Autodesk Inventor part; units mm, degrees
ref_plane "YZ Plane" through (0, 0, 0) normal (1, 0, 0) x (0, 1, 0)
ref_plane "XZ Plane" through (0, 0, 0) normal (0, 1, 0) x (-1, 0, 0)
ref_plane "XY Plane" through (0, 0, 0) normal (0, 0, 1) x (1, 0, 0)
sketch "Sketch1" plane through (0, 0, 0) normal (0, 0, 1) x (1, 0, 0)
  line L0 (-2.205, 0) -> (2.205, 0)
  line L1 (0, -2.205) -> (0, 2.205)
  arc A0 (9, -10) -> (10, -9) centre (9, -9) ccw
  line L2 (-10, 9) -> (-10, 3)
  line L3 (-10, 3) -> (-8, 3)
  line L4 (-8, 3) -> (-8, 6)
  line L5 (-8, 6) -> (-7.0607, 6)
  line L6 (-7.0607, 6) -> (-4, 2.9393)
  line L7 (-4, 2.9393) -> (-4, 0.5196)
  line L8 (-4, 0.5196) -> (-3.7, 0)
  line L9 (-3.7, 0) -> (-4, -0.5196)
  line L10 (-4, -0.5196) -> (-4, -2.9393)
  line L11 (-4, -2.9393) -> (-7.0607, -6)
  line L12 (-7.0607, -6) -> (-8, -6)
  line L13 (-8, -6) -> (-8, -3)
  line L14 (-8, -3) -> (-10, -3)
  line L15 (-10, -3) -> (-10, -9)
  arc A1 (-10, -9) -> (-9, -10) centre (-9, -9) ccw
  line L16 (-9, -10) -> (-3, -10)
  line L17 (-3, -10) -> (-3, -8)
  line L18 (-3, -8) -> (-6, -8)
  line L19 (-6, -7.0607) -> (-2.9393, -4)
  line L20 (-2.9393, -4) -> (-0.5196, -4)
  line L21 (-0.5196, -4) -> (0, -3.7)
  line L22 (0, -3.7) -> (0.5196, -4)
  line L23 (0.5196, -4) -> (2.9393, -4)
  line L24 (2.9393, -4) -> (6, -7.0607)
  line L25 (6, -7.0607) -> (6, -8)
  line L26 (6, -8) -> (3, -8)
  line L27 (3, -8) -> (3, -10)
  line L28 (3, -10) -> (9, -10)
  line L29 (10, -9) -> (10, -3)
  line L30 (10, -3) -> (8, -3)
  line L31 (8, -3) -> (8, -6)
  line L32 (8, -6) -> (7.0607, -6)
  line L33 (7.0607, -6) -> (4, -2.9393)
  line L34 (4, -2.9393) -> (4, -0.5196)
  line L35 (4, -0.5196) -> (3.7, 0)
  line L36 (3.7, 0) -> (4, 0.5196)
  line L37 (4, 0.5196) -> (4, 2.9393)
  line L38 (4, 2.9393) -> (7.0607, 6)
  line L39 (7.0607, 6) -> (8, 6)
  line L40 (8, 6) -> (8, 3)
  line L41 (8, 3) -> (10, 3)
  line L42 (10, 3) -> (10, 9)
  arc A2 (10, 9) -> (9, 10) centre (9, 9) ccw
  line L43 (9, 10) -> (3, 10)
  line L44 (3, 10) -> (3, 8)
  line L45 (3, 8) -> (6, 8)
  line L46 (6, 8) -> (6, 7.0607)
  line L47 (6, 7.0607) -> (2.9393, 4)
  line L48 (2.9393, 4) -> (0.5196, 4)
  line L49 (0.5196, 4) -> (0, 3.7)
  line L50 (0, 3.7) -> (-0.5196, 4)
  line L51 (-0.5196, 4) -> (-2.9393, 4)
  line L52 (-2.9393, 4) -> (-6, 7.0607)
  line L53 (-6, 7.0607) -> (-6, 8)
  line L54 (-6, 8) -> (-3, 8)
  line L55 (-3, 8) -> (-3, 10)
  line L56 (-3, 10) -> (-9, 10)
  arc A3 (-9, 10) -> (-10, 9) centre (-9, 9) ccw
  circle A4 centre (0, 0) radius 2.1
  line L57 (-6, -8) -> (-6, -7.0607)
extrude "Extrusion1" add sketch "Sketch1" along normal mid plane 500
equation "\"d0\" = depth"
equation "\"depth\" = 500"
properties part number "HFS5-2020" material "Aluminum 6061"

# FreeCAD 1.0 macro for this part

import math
import FreeCAD as App
import Part
import Sketcher

V = App.Vector
Q = App.Units.Quantity

doc = App.newDocument("Part")
body = doc.addObject("PartDesign::Body", "Body")

sketch1 = body.newObject("Sketcher::SketchObject", "Sketch")
sketch1.AttachmentSupport = (doc.getObject("XY_Plane"), [""])
sketch1.MapMode = "FlatFace"
sketch1.addGeometry(Part.LineSegment(V(3, -10, 0), V(9, -10, 0)), False)
sketch1.addGeometry(Part.ArcOfCircle(Part.Circle(V(9, -9, 0), V(0, 0, 1), 1), math.radians(-90), math.radians(0)), False)
sketch1.addGeometry(Part.LineSegment(V(10, -9, 0), V(10, -3, 0)), False)
sketch1.addGeometry(Part.LineSegment(V(10, -3, 0), V(8, -3, 0)), False)
sketch1.addGeometry(Part.LineSegment(V(8, -3, 0), V(8, -6, 0)), False)
sketch1.addGeometry(Part.LineSegment(V(8, -6, 0), V(7.1, -6, 0)), False)
sketch1.addGeometry(Part.LineSegment(V(7.1, -6, 0), V(4, -2.9, 0)), False)
sketch1.addGeometry(Part.LineSegment(V(4, -2.9, 0), V(4, -0.5, 0)), False)
sketch1.addGeometry(Part.LineSegment(V(4, -0.5, 0), V(3.7, 0, 0)), False)
sketch1.addGeometry(Part.LineSegment(V(3.7, 0, 0), V(4, 0.5, 0)), False)
sketch1.addGeometry(Part.LineSegment(V(4, 0.5, 0), V(4, 2.9, 0)), False)
sketch1.addGeometry(Part.LineSegment(V(4, 2.9, 0), V(7.1, 6, 0)), False)
sketch1.addGeometry(Part.LineSegment(V(7.1, 6, 0), V(8, 6, 0)), False)
sketch1.addGeometry(Part.LineSegment(V(8, 6, 0), V(8, 3, 0)), False)
sketch1.addGeometry(Part.LineSegment(V(8, 3, 0), V(10, 3, 0)), False)
sketch1.addGeometry(Part.LineSegment(V(10, 3, 0), V(10, 9, 0)), False)
sketch1.addGeometry(Part.ArcOfCircle(Part.Circle(V(9, 9, 0), V(0, 0, 1), 1), math.radians(0), math.radians(90)), False)
sketch1.addGeometry(Part.LineSegment(V(9, 10, 0), V(3, 10, 0)), False)
sketch1.addGeometry(Part.LineSegment(V(3, 10, 0), V(3, 8, 0)), False)
sketch1.addGeometry(Part.LineSegment(V(3, 8, 0), V(6, 8, 0)), False)
sketch1.addGeometry(Part.LineSegment(V(6, 8, 0), V(6, 7.1, 0)), False)
sketch1.addGeometry(Part.LineSegment(V(6, 7.1, 0), V(2.9, 4, 0)), False)
sketch1.addGeometry(Part.LineSegment(V(2.9, 4, 0), V(0.5, 4, 0)), False)
sketch1.addGeometry(Part.LineSegment(V(0.5, 4, 0), V(0, 3.7, 0)), False)
sketch1.addGeometry(Part.LineSegment(V(0, 3.7, 0), V(-0.5, 4, 0)), False)
sketch1.addGeometry(Part.LineSegment(V(-0.5, 4, 0), V(-2.9, 4, 0)), False)
sketch1.addGeometry(Part.LineSegment(V(-2.9, 4, 0), V(-6, 7.1, 0)), False)
sketch1.addGeometry(Part.LineSegment(V(-6, 7.1, 0), V(-6, 8, 0)), False)
sketch1.addGeometry(Part.LineSegment(V(-6, 8, 0), V(-3, 8, 0)), False)
sketch1.addGeometry(Part.LineSegment(V(-3, 8, 0), V(-3, 10, 0)), False)
sketch1.addGeometry(Part.LineSegment(V(-3, 10, 0), V(-9, 10, 0)), False)
sketch1.addGeometry(Part.ArcOfCircle(Part.Circle(V(-9, 9, 0), V(0, 0, 1), 1), math.radians(90), math.radians(180)), False)
sketch1.addGeometry(Part.LineSegment(V(-10, 9, 0), V(-10, 3, 0)), False)
sketch1.addGeometry(Part.LineSegment(V(-10, 3, 0), V(-8, 3, 0)), False)
sketch1.addGeometry(Part.LineSegment(V(-8, 3, 0), V(-8, 6, 0)), False)
sketch1.addGeometry(Part.LineSegment(V(-8, 6, 0), V(-7.1, 6, 0)), False)
sketch1.addGeometry(Part.LineSegment(V(-7.1, 6, 0), V(-4, 2.9, 0)), False)
sketch1.addGeometry(Part.LineSegment(V(-4, 2.9, 0), V(-4, 0.5, 0)), False)
sketch1.addGeometry(Part.LineSegment(V(-4, 0.5, 0), V(-3.7, 0, 0)), False)
sketch1.addGeometry(Part.LineSegment(V(-3.7, 0, 0), V(-4, -0.5, 0)), False)
sketch1.addGeometry(Part.LineSegment(V(-4, -0.5, 0), V(-4, -2.9, 0)), False)
sketch1.addGeometry(Part.LineSegment(V(-4, -2.9, 0), V(-7.1, -6, 0)), False)
sketch1.addGeometry(Part.LineSegment(V(-7.1, -6, 0), V(-8, -6, 0)), False)
sketch1.addGeometry(Part.LineSegment(V(-8, -6, 0), V(-8, -3, 0)), False)
sketch1.addGeometry(Part.LineSegment(V(-8, -3, 0), V(-10, -3, 0)), False)
sketch1.addGeometry(Part.LineSegment(V(-10, -3, 0), V(-10, -9, 0)), False)
sketch1.addGeometry(Part.ArcOfCircle(Part.Circle(V(-9, -9, 0), V(0, 0, 1), 1), math.radians(180), math.radians(270)), False)
sketch1.addGeometry(Part.LineSegment(V(-9, -10, 0), V(-3, -10, 0)), False)
sketch1.addGeometry(Part.LineSegment(V(-3, -10, 0), V(-3, -8, 0)), False)
sketch1.addGeometry(Part.LineSegment(V(-3, -8, 0), V(-6, -8, 0)), False)
sketch1.addGeometry(Part.LineSegment(V(-6, -8, 0), V(-6, -7.1, 0)), False)
sketch1.addGeometry(Part.LineSegment(V(-6, -7.1, 0), V(-2.9, -4, 0)), False)
sketch1.addGeometry(Part.LineSegment(V(-2.9, -4, 0), V(-0.5, -4, 0)), False)
sketch1.addGeometry(Part.LineSegment(V(-0.5, -4, 0), V(0, -3.7, 0)), False)
sketch1.addGeometry(Part.LineSegment(V(0, -3.7, 0), V(0.5, -4, 0)), False)
sketch1.addGeometry(Part.LineSegment(V(0.5, -4, 0), V(2.9, -4, 0)), False)
sketch1.addGeometry(Part.LineSegment(V(2.9, -4, 0), V(6, -7.1, 0)), False)
sketch1.addGeometry(Part.LineSegment(V(6, -7.1, 0), V(6, -8, 0)), False)
sketch1.addGeometry(Part.LineSegment(V(6, -8, 0), V(3, -8, 0)), False)
sketch1.addGeometry(Part.LineSegment(V(3, -8, 0), V(3, -10, 0)), False)
sketch1.addGeometry(Part.Circle(V(0, 0, 0), V(0, 0, 1), 2.1), False)
sketch1.addConstraint(Sketcher.Constraint("Tangent", 0, 2, 1, 1))
sketch1.addConstraint(Sketcher.Constraint("Tangent", 1, 2, 2, 1))
sketch1.addConstraint(Sketcher.Constraint("Coincident", 2, 2, 3, 1))
sketch1.addConstraint(Sketcher.Constraint("Coincident", 3, 2, 4, 1))
sketch1.addConstraint(Sketcher.Constraint("Coincident", 4, 2, 5, 1))
sketch1.addConstraint(Sketcher.Constraint("Coincident", 5, 2, 6, 1))
sketch1.addConstraint(Sketcher.Constraint("Coincident", 6, 2, 7, 1))
sketch1.addConstraint(Sketcher.Constraint("Coincident", 7, 2, 8, 1))
sketch1.addConstraint(Sketcher.Constraint("Coincident", 8, 2, 9, 1))
sketch1.addConstraint(Sketcher.Constraint("Coincident", 9, 2, 10, 1))
sketch1.addConstraint(Sketcher.Constraint("Coincident", 10, 2, 11, 1))
sketch1.addConstraint(Sketcher.Constraint("Coincident", 11, 2, 12, 1))
sketch1.addConstraint(Sketcher.Constraint("Coincident", 12, 2, 13, 1))
sketch1.addConstraint(Sketcher.Constraint("Coincident", 13, 2, 14, 1))
sketch1.addConstraint(Sketcher.Constraint("Coincident", 14, 2, 15, 1))
sketch1.addConstraint(Sketcher.Constraint("Tangent", 15, 2, 16, 1))
sketch1.addConstraint(Sketcher.Constraint("Tangent", 16, 2, 17, 1))
sketch1.addConstraint(Sketcher.Constraint("Coincident", 17, 2, 18, 1))
sketch1.addConstraint(Sketcher.Constraint("Coincident", 18, 2, 19, 1))
sketch1.addConstraint(Sketcher.Constraint("Coincident", 19, 2, 20, 1))
sketch1.addConstraint(Sketcher.Constraint("Coincident", 20, 2, 21, 1))
sketch1.addConstraint(Sketcher.Constraint("Coincident", 21, 2, 22, 1))
sketch1.addConstraint(Sketcher.Constraint("Coincident", 22, 2, 23, 1))
sketch1.addConstraint(Sketcher.Constraint("Coincident", 23, 2, 24, 1))
sketch1.addConstraint(Sketcher.Constraint("Coincident", 24, 2, 25, 1))
sketch1.addConstraint(Sketcher.Constraint("Coincident", 25, 2, 26, 1))
sketch1.addConstraint(Sketcher.Constraint("Coincident", 26, 2, 27, 1))
sketch1.addConstraint(Sketcher.Constraint("Coincident", 27, 2, 28, 1))
sketch1.addConstraint(Sketcher.Constraint("Coincident", 28, 2, 29, 1))
sketch1.addConstraint(Sketcher.Constraint("Coincident", 29, 2, 30, 1))
sketch1.addConstraint(Sketcher.Constraint("Tangent", 30, 2, 31, 1))
sketch1.addConstraint(Sketcher.Constraint("Tangent", 31, 2, 32, 1))
sketch1.addConstraint(Sketcher.Constraint("Coincident", 32, 2, 33, 1))
sketch1.addConstraint(Sketcher.Constraint("Coincident", 33, 2, 34, 1))
sketch1.addConstraint(Sketcher.Constraint("Coincident", 34, 2, 35, 1))
sketch1.addConstraint(Sketcher.Constraint("Coincident", 35, 2, 36, 1))
sketch1.addConstraint(Sketcher.Constraint("Coincident", 36, 2, 37, 1))
sketch1.addConstraint(Sketcher.Constraint("Coincident", 37, 2, 38, 1))
sketch1.addConstraint(Sketcher.Constraint("Coincident", 38, 2, 39, 1))
sketch1.addConstraint(Sketcher.Constraint("Coincident", 39, 2, 40, 1))
sketch1.addConstraint(Sketcher.Constraint("Coincident", 40, 2, 41, 1))
sketch1.addConstraint(Sketcher.Constraint("Coincident", 41, 2, 42, 1))
sketch1.addConstraint(Sketcher.Constraint("Coincident", 42, 2, 43, 1))
sketch1.addConstraint(Sketcher.Constraint("Coincident", 43, 2, 44, 1))
sketch1.addConstraint(Sketcher.Constraint("Coincident", 44, 2, 45, 1))
sketch1.addConstraint(Sketcher.Constraint("Tangent", 45, 2, 46, 1))
sketch1.addConstraint(Sketcher.Constraint("Tangent", 46, 2, 47, 1))
sketch1.addConstraint(Sketcher.Constraint("Coincident", 47, 2, 48, 1))
sketch1.addConstraint(Sketcher.Constraint("Coincident", 48, 2, 49, 1))
sketch1.addConstraint(Sketcher.Constraint("Coincident", 49, 2, 50, 1))
sketch1.addConstraint(Sketcher.Constraint("Coincident", 50, 2, 51, 1))
sketch1.addConstraint(Sketcher.Constraint("Coincident", 51, 2, 52, 1))
sketch1.addConstraint(Sketcher.Constraint("Coincident", 52, 2, 53, 1))
sketch1.addConstraint(Sketcher.Constraint("Coincident", 53, 2, 54, 1))
sketch1.addConstraint(Sketcher.Constraint("Coincident", 54, 2, 55, 1))
sketch1.addConstraint(Sketcher.Constraint("Coincident", 55, 2, 56, 1))
sketch1.addConstraint(Sketcher.Constraint("Coincident", 56, 2, 57, 1))
sketch1.addConstraint(Sketcher.Constraint("Coincident", 57, 2, 58, 1))
sketch1.addConstraint(Sketcher.Constraint("Coincident", 58, 2, 59, 1))
sketch1.addConstraint(Sketcher.Constraint("Coincident", 59, 2, 0, 1))
sketch1.addConstraint(Sketcher.Constraint("Horizontal", 0))
sketch1.addConstraint(Sketcher.Constraint("Vertical", 2))
sketch1.addConstraint(Sketcher.Constraint("Horizontal", 3))
sketch1.addConstraint(Sketcher.Constraint("Vertical", 4))
sketch1.addConstraint(Sketcher.Constraint("Horizontal", 5))
sketch1.addConstraint(Sketcher.Constraint("Vertical", 7))
sketch1.addConstraint(Sketcher.Constraint("Vertical", 10))
sketch1.addConstraint(Sketcher.Constraint("Horizontal", 12))
sketch1.addConstraint(Sketcher.Constraint("Vertical", 13))
sketch1.addConstraint(Sketcher.Constraint("Horizontal", 14))
sketch1.addConstraint(Sketcher.Constraint("Vertical", 15))
sketch1.addConstraint(Sketcher.Constraint("Horizontal", 17))
sketch1.addConstraint(Sketcher.Constraint("Vertical", 18))
sketch1.addConstraint(Sketcher.Constraint("Horizontal", 19))
sketch1.addConstraint(Sketcher.Constraint("Vertical", 20))
sketch1.addConstraint(Sketcher.Constraint("Horizontal", 22))
sketch1.addConstraint(Sketcher.Constraint("Horizontal", 25))
sketch1.addConstraint(Sketcher.Constraint("Vertical", 27))
sketch1.addConstraint(Sketcher.Constraint("Horizontal", 28))
sketch1.addConstraint(Sketcher.Constraint("Vertical", 29))
sketch1.addConstraint(Sketcher.Constraint("Horizontal", 30))
sketch1.addConstraint(Sketcher.Constraint("Vertical", 32))
sketch1.addConstraint(Sketcher.Constraint("Horizontal", 33))
sketch1.addConstraint(Sketcher.Constraint("Vertical", 34))
sketch1.addConstraint(Sketcher.Constraint("Horizontal", 35))
sketch1.addConstraint(Sketcher.Constraint("Vertical", 37))
sketch1.addConstraint(Sketcher.Constraint("Vertical", 40))
sketch1.addConstraint(Sketcher.Constraint("Horizontal", 42))
sketch1.addConstraint(Sketcher.Constraint("Vertical", 43))
sketch1.addConstraint(Sketcher.Constraint("Horizontal", 44))
sketch1.addConstraint(Sketcher.Constraint("Vertical", 45))
sketch1.addConstraint(Sketcher.Constraint("Horizontal", 47))
sketch1.addConstraint(Sketcher.Constraint("Vertical", 48))
sketch1.addConstraint(Sketcher.Constraint("Horizontal", 49))
sketch1.addConstraint(Sketcher.Constraint("Vertical", 50))
sketch1.addConstraint(Sketcher.Constraint("Horizontal", 52))
sketch1.addConstraint(Sketcher.Constraint("Horizontal", 55))
sketch1.addConstraint(Sketcher.Constraint("Vertical", 57))
sketch1.addConstraint(Sketcher.Constraint("Horizontal", 58))
sketch1.addConstraint(Sketcher.Constraint("Vertical", 59))
sketch1.addConstraint(Sketcher.Constraint("Coincident", 60, 3, -1, 1))
sketch1.addConstraint(Sketcher.Constraint("Equal", 1, 16))
sketch1.addConstraint(Sketcher.Constraint("Equal", 16, 31))
sketch1.addConstraint(Sketcher.Constraint("Equal", 31, 46))
sketch1.addConstraint(Sketcher.Constraint("Symmetric", 1, 3, 31, 3, -1, 1))
sketch1.addConstraint(Sketcher.Constraint("Symmetric", 16, 3, 46, 3, -1, 1))
sketch1.addConstraint(Sketcher.Constraint("Symmetric", 3, 2, 33, 2, -1, 1))
sketch1.addConstraint(Sketcher.Constraint("Symmetric", 5, 2, 35, 2, -1, 1))
sketch1.addConstraint(Sketcher.Constraint("Symmetric", 6, 2, 36, 2, -1, 1))
sketch1.addConstraint(Sketcher.Constraint("Symmetric", 8, 2, 38, 2, -1, 1))
sketch1.addConstraint(Sketcher.Constraint("Symmetric", 9, 2, 39, 2, -1, 1))
sketch1.addConstraint(Sketcher.Constraint("Symmetric", 11, 2, 41, 2, -1, 1))
sketch1.addConstraint(Sketcher.Constraint("Symmetric", 13, 2, 43, 2, -1, 1))
sketch1.addConstraint(Sketcher.Constraint("Symmetric", 18, 2, 48, 2, -1, 1))
sketch1.addConstraint(Sketcher.Constraint("Symmetric", 20, 2, 50, 2, -1, 1))
sketch1.addConstraint(Sketcher.Constraint("Symmetric", 21, 2, 51, 2, -1, 1))
sketch1.addConstraint(Sketcher.Constraint("Symmetric", 23, 2, 53, 2, -1, 1))
sketch1.addConstraint(Sketcher.Constraint("Symmetric", 24, 2, 54, 2, -1, 1))
sketch1.addConstraint(Sketcher.Constraint("Symmetric", 26, 2, 56, 2, -1, 1))
sketch1.addConstraint(Sketcher.Constraint("Symmetric", 28, 2, 58, 2, -1, 1))
sketch1.addConstraint(Sketcher.Constraint("Symmetric", 16, 3, 31, 3, -2))
sketch1.addConstraint(Sketcher.Constraint("Symmetric", 22, 2, 24, 2, -2))
sketch1.addConstraint(Sketcher.Constraint("Symmetric", 20, 2, 26, 2, -2))
sketch1.addConstraint(Sketcher.Constraint("Symmetric", 18, 2, 28, 2, -2))
sketch1.addConstraint(Sketcher.Constraint("Symmetric", 13, 2, 33, 2, -2))
sketch1.addConstraint(Sketcher.Constraint("Symmetric", 11, 2, 35, 2, -2))
sketch1.addConstraint(Sketcher.Constraint("Symmetric", 10, 2, 36, 2, -2))
sketch1.addConstraint(Sketcher.Constraint("PointOnObject", 8, 2, -1))
sketch1.addConstraint(Sketcher.Constraint("PointOnObject", 23, 2, -2))
sketch1.addConstraint(Sketcher.Constraint("Perpendicular", 6, 11))
sketch1.addConstraint(Sketcher.Constraint("Parallel", 11, 21))
sketch1.addConstraint(Sketcher.Constraint("Perpendicular", 8, 23))
sketch1.addConstraint(Sketcher.Constraint("Perpendicular", 9, 24))
sketch1.addConstraint(Sketcher.Constraint("Perpendicular", 21, 26))
sketch1.addConstraint(Sketcher.Constraint("Perpendicular", 23, 38))
sketch1.addConstraint(Sketcher.Constraint("Perpendicular", 36, 41))
sketch1.addConstraint(Sketcher.Constraint("Perpendicular", 38, 53))
sketch1.addConstraint(Sketcher.Constraint("Perpendicular", 51, 56))
sketch1.addConstraint(Sketcher.Constraint("Equal", 47, 2))
sketch1.addConstraint(Sketcher.Constraint("Equal", 58, 4))
sketch1.addConstraint(Sketcher.Constraint("Equal", 55, 7))
sketch1.addConstraint(Sketcher.Constraint("Equal", 44, 18))
sketch1.addConstraint(Sketcher.Constraint("Equal", 42, 20))
sketch1.addConstraint(Sketcher.Constraint("Equal", 11, 21))
sketch1.addConstraint(Sketcher.Constraint("Equal", 9, 23))
sketch1.addConstraint(Sketcher.Constraint("Radius", 1, 1.0))
sketch1.addConstraint(Sketcher.Constraint("Diameter", 60, 4.2))
sketch1.addConstraint(Sketcher.Constraint("DistanceX", 0, 1, 0, 2, 6.0))
sketch1.addConstraint(Sketcher.Constraint("DistanceX", 3, 2, 3, 1, 2.0))
sketch1.addConstraint(Sketcher.Constraint("DistanceX", 19, 1, 19, 2, 3.0))
sketch1.addConstraint(Sketcher.Constraint("Angle", 8, Q("120.0007 deg")))
sketch1.addConstraint(Sketcher.Constraint("DistanceX", -1, 1, 1, 3, 9.0))
sketch1.addConstraint(Sketcher.Constraint("DistanceX", -1, 1, 6, 2, 4.0))
sketch1.addConstraint(Sketcher.Constraint("Distance", 8, 0.6))
sketch1.addConstraint(Sketcher.Constraint("DistanceX", 5, 2, 5, 1, 0.9393))
pad1 = body.newObject("PartDesign::Pad", "Pad")
pad1.Profile = sketch1
pad1.Length = 500
pad1.Midplane = True

doc.recompute()
